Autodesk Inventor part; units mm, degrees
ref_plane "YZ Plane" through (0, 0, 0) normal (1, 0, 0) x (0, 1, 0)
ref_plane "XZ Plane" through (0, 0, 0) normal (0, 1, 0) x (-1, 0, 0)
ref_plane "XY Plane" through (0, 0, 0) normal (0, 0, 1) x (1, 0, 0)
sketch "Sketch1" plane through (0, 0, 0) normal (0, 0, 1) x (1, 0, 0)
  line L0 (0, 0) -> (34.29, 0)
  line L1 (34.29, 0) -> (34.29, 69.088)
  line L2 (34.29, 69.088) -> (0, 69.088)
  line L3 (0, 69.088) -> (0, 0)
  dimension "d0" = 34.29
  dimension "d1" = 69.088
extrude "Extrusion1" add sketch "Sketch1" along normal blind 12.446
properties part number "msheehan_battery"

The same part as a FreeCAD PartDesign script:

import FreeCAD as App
import Part
import Sketcher
from FreeCAD import Vector
Q = App.Units.Quantity

doc = App.newDocument("Part")
params = doc.addObject("Spreadsheet::Sheet", "Params")
for row, (alias, value) in enumerate([
    ("sketch1_width", "1.35 in"),
    ("sketch1_height", "2.72 in"),
    ("pad1_length", "0.49 in"),
], start=1):
    params.set(f"A{row}", alias)
    params.set(f"B{row}", "=" + value)
    params.setAlias(f"B{row}", alias)

body = doc.addObject("PartDesign::Body", "Body")

# Sketch on XY plane
sketch1 = doc.addObject("Sketcher::SketchObject", "Sketch")
body.addObject(sketch1)
sketch1.AttachmentSupport = (doc.XY_Plane, [""])
sketch1.MapMode = "FlatFace"
sketch1.addGeometry(Part.LineSegment(Vector(0, 69, 0), Vector(0, 0, 0)), False)
sketch1.addGeometry(Part.LineSegment(Vector(0, 0, 0), Vector(34, 0, 0)), False)
sketch1.addGeometry(Part.LineSegment(Vector(34, 0, 0), Vector(34, 69, 0)), False)
sketch1.addGeometry(Part.LineSegment(Vector(34, 69, 0), Vector(0, 69, 0)), False)
sketch1.addConstraint(Sketcher.Constraint("Coincident", 0, 2, 1, 1))
sketch1.addConstraint(Sketcher.Constraint("Coincident", 1, 2, 2, 1))
sketch1.addConstraint(Sketcher.Constraint("Coincident", 2, 2, 3, 1))
sketch1.addConstraint(Sketcher.Constraint("Coincident", 3, 2, 0, 1))
sketch1.addConstraint(Sketcher.Constraint("Vertical", 0))
sketch1.addConstraint(Sketcher.Constraint("Horizontal", 1))
sketch1.addConstraint(Sketcher.Constraint("Vertical", 2))
sketch1.addConstraint(Sketcher.Constraint("Horizontal", 3))
sketch1.addConstraint(Sketcher.Constraint("Coincident", 0, 2, -1, 1))
sketch1.addConstraint(Sketcher.Constraint("DistanceX", 1, 1, 1, 2, Q("1.35 in")))
sketch1.addConstraint(Sketcher.Constraint("DistanceY", 0, 2, 0, 1, Q("2.72 in")))
sketch1.setExpression("Constraints[9]", "Params.sketch1_width")
sketch1.setExpression("Constraints[10]", "Params.sketch1_height")
pad1 = doc.addObject("PartDesign::Pad", "Pad")
body.addObject(pad1)
pad1.Profile = sketch1
pad1.setExpression("Length", "Params.pad1_length")

doc.recompute()
